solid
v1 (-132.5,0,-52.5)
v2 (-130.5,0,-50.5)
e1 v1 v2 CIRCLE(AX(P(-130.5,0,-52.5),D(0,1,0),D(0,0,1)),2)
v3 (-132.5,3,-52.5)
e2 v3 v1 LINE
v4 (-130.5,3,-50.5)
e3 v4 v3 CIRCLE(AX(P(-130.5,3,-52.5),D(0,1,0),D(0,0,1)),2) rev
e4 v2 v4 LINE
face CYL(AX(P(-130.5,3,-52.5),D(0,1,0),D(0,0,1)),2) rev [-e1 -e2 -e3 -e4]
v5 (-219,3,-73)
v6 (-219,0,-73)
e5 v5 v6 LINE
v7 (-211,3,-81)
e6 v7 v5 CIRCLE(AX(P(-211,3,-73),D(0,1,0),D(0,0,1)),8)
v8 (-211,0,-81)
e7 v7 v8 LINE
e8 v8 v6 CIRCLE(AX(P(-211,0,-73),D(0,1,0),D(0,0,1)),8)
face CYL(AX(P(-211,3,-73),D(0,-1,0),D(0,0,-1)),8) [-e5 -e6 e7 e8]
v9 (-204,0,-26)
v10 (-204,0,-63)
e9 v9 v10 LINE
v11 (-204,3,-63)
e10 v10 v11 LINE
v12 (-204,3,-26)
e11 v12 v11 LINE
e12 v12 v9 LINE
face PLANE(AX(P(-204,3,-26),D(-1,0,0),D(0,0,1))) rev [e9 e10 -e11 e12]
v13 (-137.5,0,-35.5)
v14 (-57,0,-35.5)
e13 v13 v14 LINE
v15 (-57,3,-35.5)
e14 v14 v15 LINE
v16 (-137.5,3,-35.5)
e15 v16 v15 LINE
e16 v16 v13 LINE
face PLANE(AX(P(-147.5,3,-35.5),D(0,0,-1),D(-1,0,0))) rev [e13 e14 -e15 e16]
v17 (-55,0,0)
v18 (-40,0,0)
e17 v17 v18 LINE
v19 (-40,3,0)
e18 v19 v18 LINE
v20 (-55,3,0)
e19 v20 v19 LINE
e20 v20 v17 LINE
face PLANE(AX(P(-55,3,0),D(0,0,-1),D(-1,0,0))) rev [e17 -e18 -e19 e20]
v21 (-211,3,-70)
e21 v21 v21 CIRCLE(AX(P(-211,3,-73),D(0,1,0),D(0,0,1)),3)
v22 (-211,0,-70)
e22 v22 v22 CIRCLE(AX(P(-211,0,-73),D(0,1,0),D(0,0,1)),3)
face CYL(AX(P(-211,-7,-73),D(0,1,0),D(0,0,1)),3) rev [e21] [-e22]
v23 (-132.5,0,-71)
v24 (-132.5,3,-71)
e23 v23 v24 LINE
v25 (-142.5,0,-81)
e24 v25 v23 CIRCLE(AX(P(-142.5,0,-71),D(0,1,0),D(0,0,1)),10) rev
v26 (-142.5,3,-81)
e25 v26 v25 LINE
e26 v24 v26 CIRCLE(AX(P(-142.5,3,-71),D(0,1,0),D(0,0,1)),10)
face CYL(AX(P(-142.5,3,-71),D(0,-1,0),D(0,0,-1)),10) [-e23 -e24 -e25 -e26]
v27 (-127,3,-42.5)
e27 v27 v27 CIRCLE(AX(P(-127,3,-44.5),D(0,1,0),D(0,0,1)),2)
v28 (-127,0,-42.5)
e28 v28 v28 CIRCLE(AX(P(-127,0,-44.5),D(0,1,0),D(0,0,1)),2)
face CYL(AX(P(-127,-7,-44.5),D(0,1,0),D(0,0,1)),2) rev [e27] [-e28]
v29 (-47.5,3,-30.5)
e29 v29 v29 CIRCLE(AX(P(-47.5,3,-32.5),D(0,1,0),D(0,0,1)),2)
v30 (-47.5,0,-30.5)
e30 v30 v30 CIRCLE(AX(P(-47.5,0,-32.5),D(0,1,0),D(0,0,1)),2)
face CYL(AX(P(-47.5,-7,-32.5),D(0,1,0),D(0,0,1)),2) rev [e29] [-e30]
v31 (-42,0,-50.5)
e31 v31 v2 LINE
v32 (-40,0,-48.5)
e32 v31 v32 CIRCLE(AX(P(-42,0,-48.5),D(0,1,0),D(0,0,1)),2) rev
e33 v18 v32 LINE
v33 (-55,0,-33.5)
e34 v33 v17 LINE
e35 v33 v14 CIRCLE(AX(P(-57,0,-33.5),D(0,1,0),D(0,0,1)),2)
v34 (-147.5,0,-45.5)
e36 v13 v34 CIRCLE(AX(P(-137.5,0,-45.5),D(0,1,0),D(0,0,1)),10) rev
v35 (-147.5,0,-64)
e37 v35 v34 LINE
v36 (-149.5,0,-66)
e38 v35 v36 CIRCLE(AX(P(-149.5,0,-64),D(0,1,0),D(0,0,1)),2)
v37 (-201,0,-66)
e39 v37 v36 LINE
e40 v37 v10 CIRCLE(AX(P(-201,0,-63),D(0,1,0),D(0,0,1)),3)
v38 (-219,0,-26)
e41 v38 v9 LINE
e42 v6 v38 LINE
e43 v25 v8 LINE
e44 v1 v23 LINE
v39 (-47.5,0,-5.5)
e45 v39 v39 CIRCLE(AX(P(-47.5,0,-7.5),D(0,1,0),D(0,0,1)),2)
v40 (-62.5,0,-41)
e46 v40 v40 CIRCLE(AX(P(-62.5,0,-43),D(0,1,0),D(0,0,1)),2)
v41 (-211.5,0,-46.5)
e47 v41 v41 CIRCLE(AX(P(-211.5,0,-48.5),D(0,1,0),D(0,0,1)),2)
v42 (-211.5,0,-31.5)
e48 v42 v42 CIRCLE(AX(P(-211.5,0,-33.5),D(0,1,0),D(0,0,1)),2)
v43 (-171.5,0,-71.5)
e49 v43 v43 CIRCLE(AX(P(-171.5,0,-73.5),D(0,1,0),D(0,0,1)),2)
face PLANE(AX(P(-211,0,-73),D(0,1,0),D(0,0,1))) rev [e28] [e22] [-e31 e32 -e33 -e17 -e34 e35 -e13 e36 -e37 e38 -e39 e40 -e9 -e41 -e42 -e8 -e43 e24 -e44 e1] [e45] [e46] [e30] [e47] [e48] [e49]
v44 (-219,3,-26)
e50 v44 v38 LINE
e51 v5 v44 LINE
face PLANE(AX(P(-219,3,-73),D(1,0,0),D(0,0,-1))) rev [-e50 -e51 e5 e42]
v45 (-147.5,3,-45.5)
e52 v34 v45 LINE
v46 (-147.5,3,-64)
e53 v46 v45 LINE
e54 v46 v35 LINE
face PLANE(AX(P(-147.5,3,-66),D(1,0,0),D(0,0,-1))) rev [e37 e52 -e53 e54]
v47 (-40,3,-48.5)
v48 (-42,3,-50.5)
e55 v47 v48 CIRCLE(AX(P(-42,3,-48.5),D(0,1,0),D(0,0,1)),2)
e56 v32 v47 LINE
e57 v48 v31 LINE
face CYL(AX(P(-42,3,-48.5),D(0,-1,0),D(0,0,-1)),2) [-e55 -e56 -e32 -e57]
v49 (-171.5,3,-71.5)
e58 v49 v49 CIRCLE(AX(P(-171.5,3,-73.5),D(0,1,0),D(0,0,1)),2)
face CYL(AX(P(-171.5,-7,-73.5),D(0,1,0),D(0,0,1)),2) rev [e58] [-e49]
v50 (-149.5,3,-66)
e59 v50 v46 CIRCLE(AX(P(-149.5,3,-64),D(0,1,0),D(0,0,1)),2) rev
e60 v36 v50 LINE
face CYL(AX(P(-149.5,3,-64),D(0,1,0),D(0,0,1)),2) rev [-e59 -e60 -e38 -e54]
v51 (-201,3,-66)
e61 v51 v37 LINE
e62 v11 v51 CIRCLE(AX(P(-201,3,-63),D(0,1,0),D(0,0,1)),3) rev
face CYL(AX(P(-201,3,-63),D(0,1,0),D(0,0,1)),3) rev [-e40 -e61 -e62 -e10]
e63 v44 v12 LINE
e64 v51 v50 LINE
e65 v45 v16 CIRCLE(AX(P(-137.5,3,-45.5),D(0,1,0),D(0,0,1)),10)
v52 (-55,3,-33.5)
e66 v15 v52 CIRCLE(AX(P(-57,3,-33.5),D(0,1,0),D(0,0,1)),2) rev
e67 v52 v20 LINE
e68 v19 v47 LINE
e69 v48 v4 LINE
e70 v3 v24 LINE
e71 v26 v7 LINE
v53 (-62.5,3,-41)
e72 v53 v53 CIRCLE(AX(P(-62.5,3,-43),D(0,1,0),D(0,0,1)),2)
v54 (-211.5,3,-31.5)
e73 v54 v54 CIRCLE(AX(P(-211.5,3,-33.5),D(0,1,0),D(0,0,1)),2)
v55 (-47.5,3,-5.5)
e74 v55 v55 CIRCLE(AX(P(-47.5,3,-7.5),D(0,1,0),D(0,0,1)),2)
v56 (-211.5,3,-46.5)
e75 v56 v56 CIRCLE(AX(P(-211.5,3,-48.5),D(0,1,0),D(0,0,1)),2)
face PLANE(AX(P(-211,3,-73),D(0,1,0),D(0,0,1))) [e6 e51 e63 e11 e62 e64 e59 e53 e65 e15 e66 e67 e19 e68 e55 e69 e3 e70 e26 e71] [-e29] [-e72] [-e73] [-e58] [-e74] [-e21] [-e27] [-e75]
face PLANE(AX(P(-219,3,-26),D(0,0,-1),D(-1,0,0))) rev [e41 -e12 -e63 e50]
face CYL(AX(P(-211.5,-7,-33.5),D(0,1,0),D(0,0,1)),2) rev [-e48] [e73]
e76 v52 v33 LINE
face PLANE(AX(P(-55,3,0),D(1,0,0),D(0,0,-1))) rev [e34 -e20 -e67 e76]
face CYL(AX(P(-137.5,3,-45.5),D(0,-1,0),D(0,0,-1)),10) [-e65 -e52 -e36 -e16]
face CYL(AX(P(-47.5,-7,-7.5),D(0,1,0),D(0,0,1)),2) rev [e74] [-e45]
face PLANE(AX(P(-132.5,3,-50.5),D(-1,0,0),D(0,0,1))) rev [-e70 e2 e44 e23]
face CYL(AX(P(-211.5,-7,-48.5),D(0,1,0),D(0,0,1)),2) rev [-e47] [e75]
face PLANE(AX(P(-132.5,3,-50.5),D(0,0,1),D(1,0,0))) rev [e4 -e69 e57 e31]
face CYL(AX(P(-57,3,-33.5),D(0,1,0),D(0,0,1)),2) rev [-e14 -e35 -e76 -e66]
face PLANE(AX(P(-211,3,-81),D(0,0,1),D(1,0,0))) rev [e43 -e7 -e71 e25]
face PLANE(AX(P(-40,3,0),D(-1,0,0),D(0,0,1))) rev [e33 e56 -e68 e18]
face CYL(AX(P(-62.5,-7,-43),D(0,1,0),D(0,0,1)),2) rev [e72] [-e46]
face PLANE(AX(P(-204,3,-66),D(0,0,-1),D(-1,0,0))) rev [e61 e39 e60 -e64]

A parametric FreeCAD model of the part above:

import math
import FreeCAD as App
import Part
import Sketcher

V = App.Vector
Q = App.Units.Quantity


def edges_at(feature, points):
    """Names of the edges that pass closest to the given points."""
    edges = feature.Shape.Edges
    near = lambda p: min(range(len(edges)), key=lambda i: edges[i].distToShape(Part.Vertex(*p))[0])
    return sorted({f"Edge{near(p) + 1}" for p in points})

doc = App.newDocument("Part")
body = doc.addObject("PartDesign::Body", "Body")

sketch1 = body.newObject("Sketcher::SketchObject", "Sketch")
sketch1.AttachmentSupport = (doc.getObject("XZ_Plane"), [""])
sketch1.MapMode = "FlatFace"
sketch1.addGeometry([
    Part.LineSegment(V(-55, 0, 0), V(-40, 0, 0)),
    Part.LineSegment(V(-40, 0, 0), V(-40, -50.5, 0)),
    Part.LineSegment(V(-40, -50.5, 0), V(-132.5, -50.5, 0)),
    Part.LineSegment(V(-132.5, -50.5, 0), V(-132.5, -81, 0)),
    Part.LineSegment(V(-132.5, -81, 0), V(-211, -81, 0)),
    Part.ArcOfCircle(Part.Circle(V(-211, -73, 0), V(0, 0, 1), 8), math.radians(-180), math.radians(-90)),
    Part.LineSegment(V(-219, -73, 0), V(-219, -26, 0)),
    Part.LineSegment(V(-219, -26, 0), V(-204, -26, 0)),
    Part.LineSegment(V(-204, -26, 0), V(-204, -66, 0)),
    Part.LineSegment(V(-204, -66, 0), V(-147.5, -66, 0)),
    Part.LineSegment(V(-147.5, -66, 0), V(-147.5, -35.5, 0)),
    Part.LineSegment(V(-147.5, -35.5, 0), V(-55, -35.5, 0)),
    Part.LineSegment(V(-55, -35.5, 0), V(-55, 0, 0)),
], False)
sketch1.addConstraint([
    Sketcher.Constraint("Coincident", 0, 2, 1, 1),
    Sketcher.Constraint("Coincident", 1, 2, 2, 1),
    Sketcher.Constraint("Coincident", 2, 2, 3, 1),
    Sketcher.Constraint("Coincident", 3, 2, 4, 1),
    Sketcher.Constraint("Tangent", 4, 2, 5, 2),
    Sketcher.Constraint("Tangent", 5, 1, 6, 1),
    Sketcher.Constraint("Coincident", 6, 2, 7, 1),
    Sketcher.Constraint("Coincident", 7, 2, 8, 1),
    Sketcher.Constraint("Coincident", 8, 2, 9, 1),
    Sketcher.Constraint("Coincident", 9, 2, 10, 1),
    Sketcher.Constraint("Coincident", 10, 2, 11, 1),
    Sketcher.Constraint("Coincident", 11, 2, 12, 1),
    Sketcher.Constraint("Coincident", 12, 2, 0, 1),
    Sketcher.Constraint("Horizontal", 0),
    Sketcher.Constraint("Vertical", 1),
    Sketcher.Constraint("Horizontal", 2),
    Sketcher.Constraint("Vertical", 3),
    Sketcher.Constraint("Horizontal", 4),
    Sketcher.Constraint("Vertical", 6),
    Sketcher.Constraint("Horizontal", 7),
    Sketcher.Constraint("Vertical", 8),
    Sketcher.Constraint("Horizontal", 9),
    Sketcher.Constraint("Vertical", 10),
    Sketcher.Constraint("Horizontal", 11),
    Sketcher.Constraint("Vertical", 12),
    Sketcher.Constraint("PointOnObject", 0, 2, -1),
    Sketcher.Constraint("Equal", 0, 7),
    Sketcher.Constraint("Equal", 2, 11),
    Sketcher.Constraint("Equal", 3, 10),
    Sketcher.Constraint("Radius", 5, Q("8 mm")),
    Sketcher.Constraint("DistanceX", 0, 1, 0, 2, Q("15 mm")),
    Sketcher.Constraint("DistanceY", 6, 1, 6, 2, Q("47 mm")),
    Sketcher.Constraint("DistanceY", 8, 2, 8, 1, Q("40 mm")),
    Sketcher.Constraint("DistanceX", 2, 2, 2, 1, Q("92.5 mm")),
    Sketcher.Constraint("DistanceX", 4, 2, 4, 1, Q("78.5 mm")),
    Sketcher.Constraint("DistanceY", 1, 2, 1, 1, Q("50.5 mm")),
    Sketcher.Constraint("DistanceY", 3, 2, 3, 1, Q("30.5 mm")),
    Sketcher.Constraint("DistanceX", 5, 3, -1, 1, Q("211 mm")),
])
pad1 = body.newObject("PartDesign::Pad", "Pad")
pad1.Profile = sketch1
pad1.Length = 3
pad1.Reversed = True

sketch2 = body.newObject("Sketcher::SketchObject", "Sketch001")
sketch2.AttachmentSupport = (doc.getObject("XZ_Plane"), [""])
sketch2.MapMode = "FlatFace"
sketch2.AttachmentOffset = App.Placement(V(0, 0, -3), App.Rotation())
sketch2.addGeometry([
    Part.Circle(V(-47.5, -32.5, 0), V(0, 0, 1), 2),
    Part.Circle(V(-211.5, -33.5, 0), V(0, 0, 1), 2),
    Part.Circle(V(-211.5, -48.5, 0), V(0, 0, 1), 2),
    Part.Circle(V(-211, -73, 0), V(0, 0, 1), 3),
    Part.Circle(V(-171.5, -73.5, 0), V(0, 0, 1), 2),
    Part.Circle(V(-127, -44.5, 0), V(0, 0, 1), 2),
    Part.Circle(V(-62.5, -43, 0), V(0, 0, 1), 2),
    Part.Circle(V(-47.5, -7.5, 0), V(0, 0, 1), 2),
], False)
sketch2.addConstraint([
    Sketcher.Constraint("Equal", 0, 1),
    Sketcher.Constraint("Equal", 1, 2),
    Sketcher.Constraint("Equal", 2, 4),
    Sketcher.Constraint("Equal", 4, 5),
    Sketcher.Constraint("Equal", 5, 6),
    Sketcher.Constraint("Equal", 6, 7),
    Sketcher.Constraint("Vertical", 1, 3, 2, 3),
    Sketcher.Constraint("Vertical", 0, 3, 7, 3),
    Sketcher.Constraint("Diameter", 0, Q("4 mm")),
    Sketcher.Constraint("Diameter", 3, Q("6 mm")),
    Sketcher.Constraint("DistanceX", 3, 3, -1, 1, Q("211 mm")),
    Sketcher.Constraint("DistanceY", 3, 3, -1, 1, Q("73 mm")),
    Sketcher.Constraint("DistanceX", 5, 3, -1, 1, Q("127 mm")),
    Sketcher.Constraint("DistanceY", 6, 3, -1, 1, Q("43 mm")),
    Sketcher.Constraint("DistanceX", 1, 3, 0, 3, Q("164 mm")),
    Sketcher.Constraint("DistanceY", 1, 3, 0, 3, Q("1 mm")),
    Sketcher.Constraint("DistanceY", 2, 3, 1, 3, Q("15 mm")),
    Sketcher.Constraint("DistanceX", 2, 3, 4, 3, Q("40 mm")),
    Sketcher.Constraint("DistanceY", 4, 3, 2, 3, Q("25 mm")),
    Sketcher.Constraint("DistanceY", 4, 3, 5, 3, Q("29 mm")),
    Sketcher.Constraint("DistanceX", 6, 3, 0, 3, Q("15 mm")),
    Sketcher.Constraint("DistanceY", 0, 3, 7, 3, Q("25 mm")),
    Sketcher.Constraint("DistanceX", 0, 3, -1, 1, Q("47.5 mm")),
    Sketcher.Constraint("DistanceY", 0, 3, -1, 1, Q("32.5 mm")),
])
pocket1 = body.newObject("PartDesign::Pocket", "Pocket")
pocket1.Profile = sketch2
pocket1.Length = 10
pocket1.Reversed = True
doc.recompute()

fillet = body.newObject("PartDesign::Fillet", "Fillet")
fillet.Base = (pocket1, edges_at(pocket1, [(-147.5, 1.5, -35.5), (-132.5, 1.5, -81)]))
fillet.Radius = 10
doc.recompute()

fillet2 = body.newObject("PartDesign::Fillet", "Fillet001")
fillet2.Base = (fillet, edges_at(fillet, [
    (-40, 1.5, -50.5),
    (-55, 1.5, -35.5),
    (-147.5, 1.5, -66),
    (-132.5, 1.5, -50.5),
]))
fillet2.Radius = 2
doc.recompute()

fillet3 = body.newObject("PartDesign::Fillet", "Fillet002")
fillet3.Base = (fillet2, edges_at(fillet2, [(-204, 1.5, -66)]))
fillet3.Radius = 3

doc.recompute()
